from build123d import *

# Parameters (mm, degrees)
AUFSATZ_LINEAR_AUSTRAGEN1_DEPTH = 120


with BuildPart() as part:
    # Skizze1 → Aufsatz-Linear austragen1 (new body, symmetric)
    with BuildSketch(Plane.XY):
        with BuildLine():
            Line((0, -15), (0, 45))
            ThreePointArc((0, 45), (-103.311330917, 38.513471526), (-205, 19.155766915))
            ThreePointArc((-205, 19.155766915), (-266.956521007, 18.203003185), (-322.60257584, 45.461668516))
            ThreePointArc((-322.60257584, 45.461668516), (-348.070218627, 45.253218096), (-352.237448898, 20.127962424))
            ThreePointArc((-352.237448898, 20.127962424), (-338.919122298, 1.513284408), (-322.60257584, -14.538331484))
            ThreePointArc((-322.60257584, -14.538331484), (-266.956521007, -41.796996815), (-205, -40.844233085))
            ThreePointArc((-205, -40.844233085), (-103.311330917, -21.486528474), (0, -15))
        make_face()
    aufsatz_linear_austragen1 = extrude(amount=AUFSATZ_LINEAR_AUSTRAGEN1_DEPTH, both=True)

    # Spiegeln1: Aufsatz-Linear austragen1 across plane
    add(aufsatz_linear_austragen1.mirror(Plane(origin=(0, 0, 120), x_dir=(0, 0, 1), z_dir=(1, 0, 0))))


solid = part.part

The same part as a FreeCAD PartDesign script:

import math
import FreeCAD as App
import Part
import Sketcher
from FreeCAD import Vector
Q = App.Units.Quantity

doc = App.newDocument("Part")
params = doc.addObject("Spreadsheet::Sheet", "Params")
for row, (alias, value) in enumerate([
    ("sketch1_height", "60 mm"),
    ("pad1_length", "240 mm"),
], start=1):
    params.set(f"A{row}", alias)
    params.set(f"B{row}", "=" + value)
    params.setAlias(f"B{row}", alias)

body = doc.addObject("PartDesign::Body", "Body")

# Sketch on XY plane
sketch1 = body.newObject("Sketcher::SketchObject", "Sketch")
sketch1.AttachmentSupport = (doc.getObject("XY_Plane"), [""])
sketch1.MapMode = "FlatFace"
sketch1.addGeometry(Part.LineSegment(Vector(0, -15, 0), Vector(0, 45, 0)), False)
sketch1.addGeometry(Part.ArcOfCircle(Part.Circle(Vector(0, -781, 0), Vector(0, 0, 1), 826), math.radians(90), math.radians(104.37)), False)
sketch1.addGeometry(Part.ArcOfCircle(Part.Circle(Vector(-238, 148, 0), Vector(0, 0, 1), 133), math.radians(-130), math.radians(-76)), False)
sketch1.addGeometry(Part.ArcOfCircle(Part.Circle(Vector(-335, 30, 0), Vector(0, 0, 1), 20), math.radians(50), math.radians(211)), False)
sketch1.addGeometry(Part.ArcOfCircle(Part.Circle(Vector(-238, 88, 0), Vector(0, 0, 1), 133), math.radians(-149.36), math.radians(-129.59)), False)
sketch1.addGeometry(Part.ArcOfCircle(Part.Circle(Vector(-238, 88, 0), Vector(0, 0, 1), 133), math.radians(-130), math.radians(-76)), False)
sketch1.addGeometry(Part.ArcOfCircle(Part.Circle(Vector(0, -841, 0), Vector(0, 0, 1), 826), math.radians(90), math.radians(104.37)), False)
sketch1.addConstraint(Sketcher.Constraint("Coincident", 0, 2, 1, 1))
sketch1.addConstraint(Sketcher.Constraint("Tangent", 1, 2, 2, 2))
sketch1.addConstraint(Sketcher.Constraint("Tangent", 2, 1, 3, 1))
sketch1.addConstraint(Sketcher.Constraint("Tangent", 3, 2, 4, 1))
sketch1.addConstraint(Sketcher.Constraint("Tangent", 4, 2, 5, 1))
sketch1.addConstraint(Sketcher.Constraint("Tangent", 5, 2, 6, 2))
sketch1.addConstraint(Sketcher.Constraint("Coincident", 6, 1, 0, 1))
sketch1.addConstraint(Sketcher.Constraint("Vertical", 0))
sketch1.addConstraint(Sketcher.Constraint("Equal", 2, 4))
sketch1.addConstraint(Sketcher.Constraint("Equal", 4, 5))
sketch1.addConstraint(Sketcher.Constraint("Equal", 1, 6))
sketch1.addConstraint(Sketcher.Constraint("PointOnObject", 1, 3, -2))
sketch1.addConstraint(Sketcher.Constraint("PointOnObject", 6, 3, -2))
sketch1.addConstraint(Sketcher.Constraint("PointOnObject", 0, 2, -2))
sketch1.addConstraint(Sketcher.Constraint("Vertical", 2, 3, 4, 3))
sketch1.addConstraint(Sketcher.Constraint("Vertical", 2, 1, 4, 2))
sketch1.addConstraint(Sketcher.Constraint("DistanceY", 0, 1, 0, 2, Q("60 mm")))
sketch1.addConstraint(Sketcher.Constraint("DistanceY", -1, 1, 0, 2, Q("45 mm")))
sketch1.addConstraint(Sketcher.Constraint("DistanceX", 5, 2, -1, 1, Q("205 mm")))
sketch1.addConstraint(Sketcher.Constraint("Radius", 1, Q("825.966169 mm")))
sketch1.addConstraint(Sketcher.Constraint("Radius", 2, Q("132.815815 mm")))
sketch1.addConstraint(Sketcher.Constraint("Radius", 3, Q("19.787563 mm")))
sketch1.setExpression("Constraints[16]", "Params.sketch1_height")
pad1 = body.newObject("PartDesign::Pad", "Pad")
pad1.Profile = sketch1
pad1.setExpression("Length", "Params.pad1_length")
pad1.Midplane = True
doc.recompute()

mirrored = body.newObject("PartDesign::Mirrored", "Mirrored")
mirrored.Originals = [pad1]
mirrored.MirrorPlane = (doc.getObject("YZ_Plane"), [""])
body.Tip = mirrored

doc.recompute()
